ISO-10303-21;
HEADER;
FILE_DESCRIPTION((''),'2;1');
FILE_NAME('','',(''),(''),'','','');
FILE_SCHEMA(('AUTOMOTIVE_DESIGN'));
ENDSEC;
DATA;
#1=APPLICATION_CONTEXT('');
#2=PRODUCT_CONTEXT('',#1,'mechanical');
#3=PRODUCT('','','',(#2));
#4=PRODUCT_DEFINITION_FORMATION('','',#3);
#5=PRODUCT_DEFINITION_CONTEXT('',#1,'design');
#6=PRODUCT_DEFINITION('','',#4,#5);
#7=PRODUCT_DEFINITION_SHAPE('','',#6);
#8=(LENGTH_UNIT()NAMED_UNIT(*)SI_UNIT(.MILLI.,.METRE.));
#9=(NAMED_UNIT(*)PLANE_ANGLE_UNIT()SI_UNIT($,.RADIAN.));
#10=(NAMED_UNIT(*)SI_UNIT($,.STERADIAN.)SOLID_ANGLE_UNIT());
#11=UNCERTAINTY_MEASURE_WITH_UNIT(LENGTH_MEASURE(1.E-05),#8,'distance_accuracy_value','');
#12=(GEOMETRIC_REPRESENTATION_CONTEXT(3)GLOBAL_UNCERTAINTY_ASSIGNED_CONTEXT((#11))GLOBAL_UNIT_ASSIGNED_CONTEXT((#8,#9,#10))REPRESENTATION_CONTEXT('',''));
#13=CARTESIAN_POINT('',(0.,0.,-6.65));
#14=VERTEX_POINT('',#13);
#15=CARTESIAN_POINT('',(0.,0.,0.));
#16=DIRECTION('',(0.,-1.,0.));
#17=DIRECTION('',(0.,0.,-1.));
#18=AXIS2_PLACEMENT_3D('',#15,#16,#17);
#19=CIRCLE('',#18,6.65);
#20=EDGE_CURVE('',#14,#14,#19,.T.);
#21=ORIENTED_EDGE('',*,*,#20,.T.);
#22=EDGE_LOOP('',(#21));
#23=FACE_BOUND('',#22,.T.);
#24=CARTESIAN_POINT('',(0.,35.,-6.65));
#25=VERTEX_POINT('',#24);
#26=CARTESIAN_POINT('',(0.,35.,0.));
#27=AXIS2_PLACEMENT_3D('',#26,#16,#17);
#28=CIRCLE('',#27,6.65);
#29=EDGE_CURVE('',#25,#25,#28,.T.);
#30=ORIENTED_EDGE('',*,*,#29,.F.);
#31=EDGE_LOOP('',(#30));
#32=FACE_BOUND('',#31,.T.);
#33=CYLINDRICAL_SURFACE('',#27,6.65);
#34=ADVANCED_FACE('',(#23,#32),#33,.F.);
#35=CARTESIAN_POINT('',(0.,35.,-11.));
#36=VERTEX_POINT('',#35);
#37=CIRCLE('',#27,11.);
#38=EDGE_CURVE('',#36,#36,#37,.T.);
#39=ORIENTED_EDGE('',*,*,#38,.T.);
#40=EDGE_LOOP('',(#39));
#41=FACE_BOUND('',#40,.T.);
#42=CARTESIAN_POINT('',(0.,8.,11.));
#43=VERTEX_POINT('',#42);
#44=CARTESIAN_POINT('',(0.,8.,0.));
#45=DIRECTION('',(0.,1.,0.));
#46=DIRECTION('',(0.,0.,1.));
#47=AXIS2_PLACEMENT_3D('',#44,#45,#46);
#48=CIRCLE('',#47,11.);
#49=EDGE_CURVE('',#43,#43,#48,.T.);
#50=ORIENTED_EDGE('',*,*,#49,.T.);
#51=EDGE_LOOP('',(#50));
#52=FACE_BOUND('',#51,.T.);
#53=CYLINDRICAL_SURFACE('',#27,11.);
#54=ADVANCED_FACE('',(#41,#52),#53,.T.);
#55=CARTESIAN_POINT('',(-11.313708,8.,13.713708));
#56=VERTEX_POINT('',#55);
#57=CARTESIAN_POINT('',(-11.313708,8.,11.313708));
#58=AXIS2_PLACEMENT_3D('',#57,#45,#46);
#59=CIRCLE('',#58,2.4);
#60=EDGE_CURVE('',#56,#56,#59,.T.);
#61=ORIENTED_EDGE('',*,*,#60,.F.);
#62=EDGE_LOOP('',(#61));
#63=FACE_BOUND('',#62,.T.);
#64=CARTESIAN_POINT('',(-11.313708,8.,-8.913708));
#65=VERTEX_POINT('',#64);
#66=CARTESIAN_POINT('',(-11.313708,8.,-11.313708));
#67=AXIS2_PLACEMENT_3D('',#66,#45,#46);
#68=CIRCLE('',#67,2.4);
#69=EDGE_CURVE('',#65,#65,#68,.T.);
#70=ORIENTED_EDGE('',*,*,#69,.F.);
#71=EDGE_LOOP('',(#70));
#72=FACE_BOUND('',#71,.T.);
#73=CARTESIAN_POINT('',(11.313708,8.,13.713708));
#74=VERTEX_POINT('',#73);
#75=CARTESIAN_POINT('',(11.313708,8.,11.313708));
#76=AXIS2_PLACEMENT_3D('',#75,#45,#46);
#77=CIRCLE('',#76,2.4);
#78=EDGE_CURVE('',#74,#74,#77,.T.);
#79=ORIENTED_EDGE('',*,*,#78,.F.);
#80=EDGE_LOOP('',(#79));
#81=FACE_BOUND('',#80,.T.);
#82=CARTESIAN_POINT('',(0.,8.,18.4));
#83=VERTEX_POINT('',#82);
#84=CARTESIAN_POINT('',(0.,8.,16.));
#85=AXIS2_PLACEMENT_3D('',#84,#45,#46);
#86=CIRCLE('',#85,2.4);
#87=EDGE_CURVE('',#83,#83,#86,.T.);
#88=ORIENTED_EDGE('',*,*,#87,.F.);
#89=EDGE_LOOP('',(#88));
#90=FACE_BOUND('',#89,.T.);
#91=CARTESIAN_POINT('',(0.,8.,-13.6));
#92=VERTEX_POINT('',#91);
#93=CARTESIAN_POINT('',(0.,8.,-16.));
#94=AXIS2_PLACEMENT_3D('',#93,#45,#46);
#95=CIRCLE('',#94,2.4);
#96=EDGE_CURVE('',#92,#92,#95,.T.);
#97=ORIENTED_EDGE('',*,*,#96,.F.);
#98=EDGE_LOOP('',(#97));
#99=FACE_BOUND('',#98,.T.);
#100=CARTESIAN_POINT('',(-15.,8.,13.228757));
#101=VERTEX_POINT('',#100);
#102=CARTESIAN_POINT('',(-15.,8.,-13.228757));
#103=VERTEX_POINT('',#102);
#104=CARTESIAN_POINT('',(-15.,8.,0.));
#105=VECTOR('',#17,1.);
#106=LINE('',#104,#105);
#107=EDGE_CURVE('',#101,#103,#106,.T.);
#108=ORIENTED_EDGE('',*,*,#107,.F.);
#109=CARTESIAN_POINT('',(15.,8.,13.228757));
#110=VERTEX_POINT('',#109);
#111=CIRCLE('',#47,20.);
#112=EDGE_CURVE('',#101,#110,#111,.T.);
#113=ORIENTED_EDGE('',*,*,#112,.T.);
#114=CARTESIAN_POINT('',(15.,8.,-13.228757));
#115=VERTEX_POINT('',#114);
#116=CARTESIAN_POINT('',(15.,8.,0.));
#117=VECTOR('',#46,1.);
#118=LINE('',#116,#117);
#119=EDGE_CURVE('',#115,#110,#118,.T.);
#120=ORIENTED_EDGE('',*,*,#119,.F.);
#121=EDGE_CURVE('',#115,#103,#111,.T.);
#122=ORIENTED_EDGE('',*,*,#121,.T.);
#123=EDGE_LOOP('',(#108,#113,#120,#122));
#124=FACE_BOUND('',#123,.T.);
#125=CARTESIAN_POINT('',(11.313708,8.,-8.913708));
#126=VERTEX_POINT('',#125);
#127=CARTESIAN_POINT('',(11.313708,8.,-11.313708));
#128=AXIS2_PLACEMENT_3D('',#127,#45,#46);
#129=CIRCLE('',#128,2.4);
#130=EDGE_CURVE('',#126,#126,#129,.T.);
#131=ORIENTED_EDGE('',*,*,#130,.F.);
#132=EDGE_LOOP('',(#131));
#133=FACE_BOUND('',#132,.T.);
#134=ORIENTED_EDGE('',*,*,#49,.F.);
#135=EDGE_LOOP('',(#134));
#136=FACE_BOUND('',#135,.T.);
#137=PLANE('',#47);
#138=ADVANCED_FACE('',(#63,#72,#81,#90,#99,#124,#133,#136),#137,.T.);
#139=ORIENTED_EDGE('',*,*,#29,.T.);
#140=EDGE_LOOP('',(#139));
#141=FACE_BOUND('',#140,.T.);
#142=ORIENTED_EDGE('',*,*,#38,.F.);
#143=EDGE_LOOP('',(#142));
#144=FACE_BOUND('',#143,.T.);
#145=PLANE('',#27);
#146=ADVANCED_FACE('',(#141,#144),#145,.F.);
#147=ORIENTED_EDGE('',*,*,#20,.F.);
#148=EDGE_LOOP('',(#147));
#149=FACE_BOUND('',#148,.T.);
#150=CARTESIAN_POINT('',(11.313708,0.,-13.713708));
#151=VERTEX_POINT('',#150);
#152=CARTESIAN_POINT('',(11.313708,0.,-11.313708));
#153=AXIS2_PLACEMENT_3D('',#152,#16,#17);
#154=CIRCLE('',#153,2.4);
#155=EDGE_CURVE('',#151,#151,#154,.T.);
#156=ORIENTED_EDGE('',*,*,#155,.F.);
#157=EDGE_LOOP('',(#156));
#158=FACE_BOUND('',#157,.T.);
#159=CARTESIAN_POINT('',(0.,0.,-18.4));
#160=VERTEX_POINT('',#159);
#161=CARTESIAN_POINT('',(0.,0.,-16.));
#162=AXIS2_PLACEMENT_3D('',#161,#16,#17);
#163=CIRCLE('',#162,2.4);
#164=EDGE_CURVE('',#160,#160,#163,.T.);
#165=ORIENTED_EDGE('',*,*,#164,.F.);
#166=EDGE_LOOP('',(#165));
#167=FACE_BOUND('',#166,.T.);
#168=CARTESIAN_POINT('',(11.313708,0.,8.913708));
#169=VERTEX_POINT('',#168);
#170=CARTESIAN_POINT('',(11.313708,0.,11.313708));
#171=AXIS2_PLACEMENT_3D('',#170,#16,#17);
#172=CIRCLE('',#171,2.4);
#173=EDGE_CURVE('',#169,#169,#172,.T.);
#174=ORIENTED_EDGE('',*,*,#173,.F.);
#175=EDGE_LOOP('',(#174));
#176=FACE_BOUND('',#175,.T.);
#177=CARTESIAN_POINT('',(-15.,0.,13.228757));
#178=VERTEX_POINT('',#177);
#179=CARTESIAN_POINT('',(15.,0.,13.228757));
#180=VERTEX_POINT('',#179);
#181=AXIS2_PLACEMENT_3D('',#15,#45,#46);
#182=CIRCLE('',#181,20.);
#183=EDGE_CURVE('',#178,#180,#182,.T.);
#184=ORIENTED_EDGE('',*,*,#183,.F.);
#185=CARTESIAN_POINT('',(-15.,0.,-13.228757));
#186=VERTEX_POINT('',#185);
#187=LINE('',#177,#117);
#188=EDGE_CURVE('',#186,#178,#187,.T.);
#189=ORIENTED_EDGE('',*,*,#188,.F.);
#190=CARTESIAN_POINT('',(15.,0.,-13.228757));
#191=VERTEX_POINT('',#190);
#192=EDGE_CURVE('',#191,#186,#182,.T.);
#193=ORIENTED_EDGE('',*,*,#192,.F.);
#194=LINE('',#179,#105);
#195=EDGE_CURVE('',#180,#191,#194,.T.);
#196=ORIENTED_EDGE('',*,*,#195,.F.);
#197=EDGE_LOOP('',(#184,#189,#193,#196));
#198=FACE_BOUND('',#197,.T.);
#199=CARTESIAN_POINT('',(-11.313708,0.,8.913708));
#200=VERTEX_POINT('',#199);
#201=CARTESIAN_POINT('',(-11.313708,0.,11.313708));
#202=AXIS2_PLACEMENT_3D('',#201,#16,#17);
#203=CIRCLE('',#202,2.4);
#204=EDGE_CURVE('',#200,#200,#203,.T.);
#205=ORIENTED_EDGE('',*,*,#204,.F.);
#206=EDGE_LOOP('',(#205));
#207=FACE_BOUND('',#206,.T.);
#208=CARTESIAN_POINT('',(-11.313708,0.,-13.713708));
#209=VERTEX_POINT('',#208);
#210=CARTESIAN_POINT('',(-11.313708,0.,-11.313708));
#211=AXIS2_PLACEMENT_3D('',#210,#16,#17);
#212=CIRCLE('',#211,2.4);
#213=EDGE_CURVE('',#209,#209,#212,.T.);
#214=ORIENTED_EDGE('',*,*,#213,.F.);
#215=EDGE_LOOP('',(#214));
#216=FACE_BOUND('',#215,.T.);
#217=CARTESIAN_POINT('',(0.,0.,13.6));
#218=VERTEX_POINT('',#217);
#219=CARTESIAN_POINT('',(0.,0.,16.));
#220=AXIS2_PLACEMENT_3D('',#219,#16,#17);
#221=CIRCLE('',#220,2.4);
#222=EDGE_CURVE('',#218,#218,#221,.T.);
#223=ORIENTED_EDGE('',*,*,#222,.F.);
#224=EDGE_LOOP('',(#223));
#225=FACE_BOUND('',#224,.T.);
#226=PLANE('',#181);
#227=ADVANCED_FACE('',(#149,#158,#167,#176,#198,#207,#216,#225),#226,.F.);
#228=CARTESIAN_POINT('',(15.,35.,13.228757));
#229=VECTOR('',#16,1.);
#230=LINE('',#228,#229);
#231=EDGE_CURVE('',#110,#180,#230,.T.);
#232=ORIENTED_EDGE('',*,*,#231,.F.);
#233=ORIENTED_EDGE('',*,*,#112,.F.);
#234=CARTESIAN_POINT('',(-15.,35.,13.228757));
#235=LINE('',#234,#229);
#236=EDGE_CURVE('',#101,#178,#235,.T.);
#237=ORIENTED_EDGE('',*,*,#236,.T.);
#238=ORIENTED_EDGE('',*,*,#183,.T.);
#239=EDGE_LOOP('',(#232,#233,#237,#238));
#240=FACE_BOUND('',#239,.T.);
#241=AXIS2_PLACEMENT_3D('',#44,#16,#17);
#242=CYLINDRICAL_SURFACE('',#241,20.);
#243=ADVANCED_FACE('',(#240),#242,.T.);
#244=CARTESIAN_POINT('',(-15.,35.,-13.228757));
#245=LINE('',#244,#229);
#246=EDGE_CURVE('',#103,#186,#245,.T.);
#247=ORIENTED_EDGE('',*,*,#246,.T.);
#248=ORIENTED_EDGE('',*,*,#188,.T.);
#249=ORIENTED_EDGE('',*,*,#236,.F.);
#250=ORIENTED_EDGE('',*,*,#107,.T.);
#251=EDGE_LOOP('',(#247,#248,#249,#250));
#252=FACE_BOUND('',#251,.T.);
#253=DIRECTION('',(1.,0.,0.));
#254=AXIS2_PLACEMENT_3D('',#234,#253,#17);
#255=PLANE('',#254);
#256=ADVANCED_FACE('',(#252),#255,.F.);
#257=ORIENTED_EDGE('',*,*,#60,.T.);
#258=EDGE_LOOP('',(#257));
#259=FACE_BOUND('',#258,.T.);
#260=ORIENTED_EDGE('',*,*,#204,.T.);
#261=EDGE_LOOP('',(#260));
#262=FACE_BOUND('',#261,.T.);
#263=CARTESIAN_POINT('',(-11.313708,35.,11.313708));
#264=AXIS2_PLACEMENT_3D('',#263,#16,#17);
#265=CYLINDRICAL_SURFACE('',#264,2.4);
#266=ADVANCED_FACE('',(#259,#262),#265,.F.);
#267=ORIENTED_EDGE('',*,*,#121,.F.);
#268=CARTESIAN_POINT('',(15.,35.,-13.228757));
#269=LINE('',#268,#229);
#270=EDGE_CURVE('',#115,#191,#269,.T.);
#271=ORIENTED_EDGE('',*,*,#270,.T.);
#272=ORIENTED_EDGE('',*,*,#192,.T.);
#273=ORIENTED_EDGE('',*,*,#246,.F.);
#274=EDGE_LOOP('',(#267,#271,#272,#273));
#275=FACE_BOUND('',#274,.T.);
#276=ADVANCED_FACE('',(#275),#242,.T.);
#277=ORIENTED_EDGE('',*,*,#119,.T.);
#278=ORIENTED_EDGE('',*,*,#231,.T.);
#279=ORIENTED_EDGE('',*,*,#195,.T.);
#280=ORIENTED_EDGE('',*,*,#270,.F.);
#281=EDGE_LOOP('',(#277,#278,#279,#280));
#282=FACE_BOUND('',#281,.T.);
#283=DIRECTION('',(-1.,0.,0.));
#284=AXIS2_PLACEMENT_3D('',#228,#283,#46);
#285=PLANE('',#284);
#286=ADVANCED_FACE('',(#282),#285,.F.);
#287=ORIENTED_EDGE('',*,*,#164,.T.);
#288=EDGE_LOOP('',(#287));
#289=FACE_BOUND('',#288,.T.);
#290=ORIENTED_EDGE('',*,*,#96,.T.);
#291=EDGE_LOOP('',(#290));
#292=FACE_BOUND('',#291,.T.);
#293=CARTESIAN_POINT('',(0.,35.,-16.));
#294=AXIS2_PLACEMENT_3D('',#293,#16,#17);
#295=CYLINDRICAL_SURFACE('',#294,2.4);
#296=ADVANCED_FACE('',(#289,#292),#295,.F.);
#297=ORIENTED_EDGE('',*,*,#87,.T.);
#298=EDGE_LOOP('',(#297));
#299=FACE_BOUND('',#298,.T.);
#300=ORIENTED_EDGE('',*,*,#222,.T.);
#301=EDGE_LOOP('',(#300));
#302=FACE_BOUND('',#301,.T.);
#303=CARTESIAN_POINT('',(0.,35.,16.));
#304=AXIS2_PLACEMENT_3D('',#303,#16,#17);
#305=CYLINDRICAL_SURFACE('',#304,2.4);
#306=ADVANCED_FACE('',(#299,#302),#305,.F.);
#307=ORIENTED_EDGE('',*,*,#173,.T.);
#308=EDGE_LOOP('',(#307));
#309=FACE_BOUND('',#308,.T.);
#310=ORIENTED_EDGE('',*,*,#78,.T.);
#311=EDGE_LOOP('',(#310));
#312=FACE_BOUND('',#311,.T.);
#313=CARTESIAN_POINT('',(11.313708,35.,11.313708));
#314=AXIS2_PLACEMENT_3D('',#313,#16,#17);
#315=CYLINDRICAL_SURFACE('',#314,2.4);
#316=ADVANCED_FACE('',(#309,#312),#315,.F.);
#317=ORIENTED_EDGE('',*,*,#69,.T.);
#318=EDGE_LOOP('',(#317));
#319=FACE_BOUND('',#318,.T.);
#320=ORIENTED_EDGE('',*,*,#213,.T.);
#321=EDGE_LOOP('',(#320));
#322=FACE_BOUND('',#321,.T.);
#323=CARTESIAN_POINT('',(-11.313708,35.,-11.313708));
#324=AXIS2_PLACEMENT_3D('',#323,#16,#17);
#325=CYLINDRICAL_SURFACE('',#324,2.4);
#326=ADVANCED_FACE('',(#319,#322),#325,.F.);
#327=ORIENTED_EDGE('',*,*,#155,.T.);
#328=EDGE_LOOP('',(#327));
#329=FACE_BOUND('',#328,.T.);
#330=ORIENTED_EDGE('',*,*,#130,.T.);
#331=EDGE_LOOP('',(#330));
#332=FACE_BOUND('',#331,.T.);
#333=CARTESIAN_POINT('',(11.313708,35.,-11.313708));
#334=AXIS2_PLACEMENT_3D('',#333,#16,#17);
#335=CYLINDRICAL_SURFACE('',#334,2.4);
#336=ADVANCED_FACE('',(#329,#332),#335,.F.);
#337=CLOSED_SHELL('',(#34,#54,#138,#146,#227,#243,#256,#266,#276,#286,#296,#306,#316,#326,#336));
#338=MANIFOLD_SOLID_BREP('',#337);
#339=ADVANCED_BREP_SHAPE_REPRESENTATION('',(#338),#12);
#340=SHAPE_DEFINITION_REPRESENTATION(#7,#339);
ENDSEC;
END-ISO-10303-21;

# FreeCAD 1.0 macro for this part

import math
import FreeCAD as App
import Part
import Sketcher
from FreeCAD import Vector
Q = App.Units.Quantity

doc = App.newDocument("Part")
body = doc.addObject("PartDesign::Body", "Body")

# Sketch on XZ plane
sketch1 = body.newObject("Sketcher::SketchObject", "Sketch")
sketch1.AttachmentSupport = (doc.getObject("XZ_Plane"), [""])
sketch1.MapMode = "FlatFace"
sketch1.addGeometry(Part.Circle(Vector(0, 0, 0), Vector(0, 0, 1), 20), False)
sketch1.addConstraint(Sketcher.Constraint("Coincident", 0, 3, -1, 1))
sketch1.addConstraint(Sketcher.Constraint("Diameter", 0, Q("40 mm")))
pad1 = body.newObject("PartDesign::Pad", "Pad")
pad1.Profile = sketch1
pad1.Length = 8
pad1.Reversed = True

# Sketch on XZ plane
sketch2 = body.newObject("Sketcher::SketchObject", "Sketch001")
sketch2.AttachmentSupport = (doc.getObject("XZ_Plane"), [""])
sketch2.MapMode = "FlatFace"
sketch2.addGeometry(Part.Circle(Vector(0, 0, 0), Vector(0, 0, 1), 11), False)
sketch2.addConstraint(Sketcher.Constraint("Coincident", 0, 3, -1, 1))
sketch2.addConstraint(Sketcher.Constraint("Diameter", 0, Q("22 mm")))
pad2 = body.newObject("PartDesign::Pad", "Pad001")
pad2.Profile = sketch2
pad2.Length = 35
pad2.Reversed = True

# Sketch on XZ plane
sketch3 = body.newObject("Sketcher::SketchObject", "Sketch002")
sketch3.AttachmentSupport = (doc.getObject("XZ_Plane"), [""])
sketch3.MapMode = "FlatFace"
sketch3.addGeometry(Part.LineSegment(Vector(-15, -13, 0), Vector(-15, 13, 0)), False)
sketch3.addGeometry(Part.ArcOfCircle(Part.Circle(Vector(0, 0, 0), Vector(0, 0, 1), 20), math.radians(139), math.radians(221)), False)
sketch3.addGeometry(Part.LineSegment(Vector(15, 13, 0), Vector(15, -13, 0)), False)
sketch3.addGeometry(Part.ArcOfCircle(Part.Circle(Vector(0, 0, 0), Vector(0, 0, 1), 20), math.radians(-41), math.radians(41)), False)
sketch3.addConstraint(Sketcher.Constraint("Coincident", 0, 1, 1, 2))
sketch3.addConstraint(Sketcher.Constraint("Coincident", 1, 1, 0, 2))
sketch3.addConstraint(Sketcher.Constraint("Coincident", 2, 1, 3, 2))
sketch3.addConstraint(Sketcher.Constraint("Coincident", 3, 1, 2, 2))
sketch3.addConstraint(Sketcher.Constraint("Vertical", 0))
sketch3.addConstraint(Sketcher.Constraint("Vertical", 2))
sketch3.addConstraint(Sketcher.Constraint("Coincident", 1, 3, -1, 1))
sketch3.addConstraint(Sketcher.Constraint("Coincident", 3, 3, -1, 1))
sketch3.addConstraint(Sketcher.Constraint("Equal", 1, 3))
sketch3.addConstraint(Sketcher.Constraint("Horizontal", 1, 1, 2, 1))
sketch3.addConstraint(Sketcher.Constraint("Radius", 1, Q("20 mm")))
sketch3.addConstraint(Sketcher.Constraint("DistanceX", 0, 1, -1, 1, Q("15 mm")))
pocket1 = body.newObject("PartDesign::Pocket", "Pocket")
pocket1.Profile = sketch3
pocket1.Type = "ThroughAll"

# Sketch on XZ plane
sketch4 = body.newObject("Sketcher::SketchObject", "Sketch003")
sketch4.AttachmentSupport = (doc.getObject("XZ_Plane"), [""])
sketch4.MapMode = "FlatFace"
sketch4.addGeometry(Part.Circle(Vector(0, 16, 0), Vector(0, 0, 1), 2.4), False)
sketch4.addGeometry(Part.Circle(Vector(11.3, 11.3, 0), Vector(0, 0, 1), 2.4), False)
sketch4.addGeometry(Part.Circle(Vector(11.3, -11.3, 0), Vector(0, 0, 1), 2.4), False)
sketch4.addGeometry(Part.Circle(Vector(0, -16, 0), Vector(0, 0, 1), 2.4), False)
sketch4.addGeometry(Part.Circle(Vector(-11.3, -11.3, 0), Vector(0, 0, 1), 2.4), False)
sketch4.addGeometry(Part.Circle(Vector(-11.3, 11.3, 0), Vector(0, 0, 1), 2.4), False)
sketch4.addConstraint(Sketcher.Constraint("Equal", 0, 1))
sketch4.addConstraint(Sketcher.Constraint("Equal", 1, 2))
sketch4.addConstraint(Sketcher.Constraint("Equal", 2, 3))
sketch4.addConstraint(Sketcher.Constraint("Equal", 3, 4))
sketch4.addConstraint(Sketcher.Constraint("Equal", 4, 5))
sketch4.addConstraint(Sketcher.Constraint("Symmetric", 0, 3, 3, 3, -1, 1))
sketch4.addConstraint(Sketcher.Constraint("Symmetric", 1, 3, 4, 3, -1, 1))
sketch4.addConstraint(Sketcher.Constraint("Symmetric", 2, 3, 5, 3, -1, 1))
sketch4.addConstraint(Sketcher.Constraint("Symmetric", 2, 3, 4, 3, -2))
sketch4.addConstraint(Sketcher.Constraint("PointOnObject", 0, 3, -2))
sketch4.addConstraint(Sketcher.Constraint("Diameter", 0, Q("4.8 mm")))
sketch4.addConstraint(Sketcher.Constraint("DistanceY", -1, 1, 0, 3, Q("16 mm")))
sketch4.addConstraint(Sketcher.Constraint("DistanceX", -1, 1, 1, 3, Q("11.313708 mm")))
sketch4.addConstraint(Sketcher.Constraint("DistanceY", -1, 1, 1, 3, Q("11.313708 mm")))
pocket2 = body.newObject("PartDesign::Pocket", "Pocket001")
pocket2.Profile = sketch4
pocket2.Type = "ThroughAll"

# Sketch on XZ plane
sketch5 = body.newObject("Sketcher::SketchObject", "Sketch004")
sketch5.AttachmentSupport = (doc.getObject("XZ_Plane"), [""])
sketch5.MapMode = "FlatFace"
sketch5.addGeometry(Part.Circle(Vector(0, 0, 0), Vector(0, 0, 1), 7), False)
sketch5.addConstraint(Sketcher.Constraint("Coincident", 0, 3, -1, 1))
sketch5.addConstraint(Sketcher.Constraint("Diameter", 0, Q("13.3 mm")))
pocket3 = body.newObject("PartDesign::Pocket", "Pocket002")
pocket3.Profile = sketch5
pocket3.Type = "ThroughAll"

doc.recompute()
